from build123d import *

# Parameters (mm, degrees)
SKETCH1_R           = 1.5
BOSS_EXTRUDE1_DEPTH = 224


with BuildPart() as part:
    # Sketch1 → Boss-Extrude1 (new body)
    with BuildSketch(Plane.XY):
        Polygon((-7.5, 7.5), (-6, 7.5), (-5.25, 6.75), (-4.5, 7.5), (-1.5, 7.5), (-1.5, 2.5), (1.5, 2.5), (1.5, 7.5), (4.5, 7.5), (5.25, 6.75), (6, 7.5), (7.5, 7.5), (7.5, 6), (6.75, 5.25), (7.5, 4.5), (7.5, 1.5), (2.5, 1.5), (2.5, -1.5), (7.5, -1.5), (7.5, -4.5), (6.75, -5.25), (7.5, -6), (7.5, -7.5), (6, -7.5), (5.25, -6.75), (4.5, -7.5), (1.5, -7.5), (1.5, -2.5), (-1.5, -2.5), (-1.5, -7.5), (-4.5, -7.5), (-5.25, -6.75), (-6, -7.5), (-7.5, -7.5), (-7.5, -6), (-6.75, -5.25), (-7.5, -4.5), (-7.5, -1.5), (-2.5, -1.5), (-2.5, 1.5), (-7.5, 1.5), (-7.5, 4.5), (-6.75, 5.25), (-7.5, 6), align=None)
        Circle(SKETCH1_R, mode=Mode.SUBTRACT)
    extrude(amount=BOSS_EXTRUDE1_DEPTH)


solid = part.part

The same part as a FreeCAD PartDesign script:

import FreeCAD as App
import Part
import Sketcher
from FreeCAD import Vector
Q = App.Units.Quantity


def add_polygon(sketch, points):
    """Adds a closed chain of lines whose ends are joined by coincident constraints."""
    first, n = sketch.GeometryCount, len(points)
    for a, b in zip(points, points[1:] + points[:1]):
        sketch.addGeometry(Part.LineSegment(App.Vector(*a, 0), App.Vector(*b, 0)), False)
    for i in range(n):
        sketch.addConstraint(Sketcher.Constraint("Coincident", first + i, 2, first + (i + 1) % n, 1))

doc = App.newDocument("Part")
body = doc.addObject("PartDesign::Body", "Body")

# Sketch on XY plane
sketch1 = body.newObject("Sketcher::SketchObject", "Sketch")
sketch1.AttachmentSupport = (doc.getObject("XY_Plane"), [""])
sketch1.MapMode = "FlatFace"
add_polygon(sketch1, [(-6, 7.5), (-7.5, 7.5), (-7.5, 6), (-6.75, 5.25), (-7.5, 4.5), (-7.5, 1.5), (-2.5, 1.5), (-2.5, -1.5), (-7.5, -1.5), (-7.5, -4.5), (-6.75, -5.25), (-7.5, -6), (-7.5, -7.5), (-6, -7.5), (-5.25, -6.75), (-4.5, -7.5), (-1.5, -7.5), (-1.5, -2.5), (1.5, -2.5), (1.5, -7.5), (4.5, -7.5), (5.25, -6.75), (6, -7.5), (7.5, -7.5), (7.5, -6), (6.75, -5.25), (7.5, -4.5), (7.5, -1.5), (2.5, -1.5), (2.5, 1.5), (7.5, 1.5), (7.5, 4.5), (6.75, 5.25), (7.5, 6), (7.5, 7.5), (6, 7.5), (5.25, 6.75), (4.5, 7.5), (1.5, 7.5), (1.5, 2.5), (-1.5, 2.5), (-1.5, 7.5), (-4.5, 7.5), (-5.25, 6.75)])  # lines 0-43
sketch1.addGeometry(Part.Circle(Vector(0, 0, 0), Vector(0, 0, 1), 1.5), False)  # 44
sketch1.addConstraint(Sketcher.Constraint("Horizontal", 0))
sketch1.addConstraint(Sketcher.Constraint("Vertical", 1))
sketch1.addConstraint(Sketcher.Constraint("Vertical", 4))
sketch1.addConstraint(Sketcher.Constraint("Horizontal", 5))
sketch1.addConstraint(Sketcher.Constraint("Vertical", 6))
sketch1.addConstraint(Sketcher.Constraint("Horizontal", 7))
sketch1.addConstraint(Sketcher.Constraint("Vertical", 8))
sketch1.addConstraint(Sketcher.Constraint("Vertical", 11))
sketch1.addConstraint(Sketcher.Constraint("Horizontal", 12))
sketch1.addConstraint(Sketcher.Constraint("Horizontal", 15))
sketch1.addConstraint(Sketcher.Constraint("Vertical", 16))
sketch1.addConstraint(Sketcher.Constraint("Horizontal", 17))
sketch1.addConstraint(Sketcher.Constraint("Vertical", 18))
sketch1.addConstraint(Sketcher.Constraint("Horizontal", 19))
sketch1.addConstraint(Sketcher.Constraint("Horizontal", 22))
sketch1.addConstraint(Sketcher.Constraint("Vertical", 23))
sketch1.addConstraint(Sketcher.Constraint("Vertical", 26))
sketch1.addConstraint(Sketcher.Constraint("Horizontal", 27))
sketch1.addConstraint(Sketcher.Constraint("Vertical", 28))
sketch1.addConstraint(Sketcher.Constraint("Horizontal", 29))
sketch1.addConstraint(Sketcher.Constraint("Vertical", 30))
sketch1.addConstraint(Sketcher.Constraint("Vertical", 33))
sketch1.addConstraint(Sketcher.Constraint("Horizontal", 34))
sketch1.addConstraint(Sketcher.Constraint("Horizontal", 37))
sketch1.addConstraint(Sketcher.Constraint("Vertical", 38))
sketch1.addConstraint(Sketcher.Constraint("Horizontal", 39))
sketch1.addConstraint(Sketcher.Constraint("Vertical", 40))
sketch1.addConstraint(Sketcher.Constraint("Horizontal", 41))
sketch1.addConstraint(Sketcher.Constraint("Coincident", 44, 3, -1, 1))
sketch1.addConstraint(Sketcher.Constraint("Symmetric", 0, 2, 22, 2, -1, 1))
sketch1.addConstraint(Sketcher.Constraint("Symmetric", 2, 2, 24, 2, -1, 1))
sketch1.addConstraint(Sketcher.Constraint("Symmetric", 3, 2, 25, 2, -1, 1))
sketch1.addConstraint(Sketcher.Constraint("Symmetric", 5, 2, 27, 2, -1, 1))
sketch1.addConstraint(Sketcher.Constraint("Symmetric", 7, 2, 29, 2, -1, 1))
sketch1.addConstraint(Sketcher.Constraint("Symmetric", 9, 2, 31, 2, -1, 1))
sketch1.addConstraint(Sketcher.Constraint("Symmetric", 10, 2, 32, 2, -1, 1))
sketch1.addConstraint(Sketcher.Constraint("Symmetric", 12, 2, 34, 2, -1, 1))
sketch1.addConstraint(Sketcher.Constraint("Symmetric", 13, 2, 35, 2, -1, 1))
sketch1.addConstraint(Sketcher.Constraint("Symmetric", 14, 2, 36, 2, -1, 1))
sketch1.addConstraint(Sketcher.Constraint("Symmetric", 16, 2, 38, 2, -1, 1))
sketch1.addConstraint(Sketcher.Constraint("Symmetric", 18, 2, 40, 2, -1, 1))
sketch1.addConstraint(Sketcher.Constraint("Symmetric", 20, 2, 42, 2, -1, 1))
sketch1.addConstraint(Sketcher.Constraint("Symmetric", 15, 2, 18, 2, -2))
sketch1.addConstraint(Sketcher.Constraint("Symmetric", 13, 2, 20, 2, -2))
sketch1.addConstraint(Sketcher.Constraint("Symmetric", 12, 2, 21, 2, -2))
sketch1.addConstraint(Sketcher.Constraint("Symmetric", 10, 2, 23, 2, -2))
sketch1.addConstraint(Sketcher.Constraint("Symmetric", 9, 2, 24, 2, -2))
sketch1.addConstraint(Sketcher.Constraint("Symmetric", 8, 2, 25, 2, -2))
sketch1.addConstraint(Sketcher.Constraint("Perpendicular", 2, 3))
sketch1.addConstraint(Sketcher.Constraint("Perpendicular", 3, 9))
sketch1.addConstraint(Sketcher.Constraint("Perpendicular", 9, 10))
sketch1.addConstraint(Sketcher.Constraint("Parallel", 10, 13))
sketch1.addConstraint(Sketcher.Constraint("Perpendicular", 13, 14))
sketch1.addConstraint(Sketcher.Constraint("Perpendicular", 14, 20))
sketch1.addConstraint(Sketcher.Constraint("Perpendicular", 25, 31))
sketch1.addConstraint(Sketcher.Constraint("Perpendicular", 36, 42))
sketch1.addConstraint(Sketcher.Constraint("Perpendicular", 42, 43))
sketch1.addConstraint(Sketcher.Constraint("Horizontal", 12, 2, 14, 2))
sketch1.addConstraint(Sketcher.Constraint("Horizontal", 7, 2, 26, 2))
sketch1.addConstraint(Sketcher.Constraint("Vertical", 1, 2, 3, 2))
sketch1.addConstraint(Sketcher.Constraint("Equal", 15, 17))
sketch1.addConstraint(Sketcher.Constraint("Equal", 34, 1))
sketch1.addConstraint(Sketcher.Constraint("Equal", 41, 4))
sketch1.addConstraint(Sketcher.Constraint("Equal", 4, 6))
sketch1.addConstraint(Sketcher.Constraint("Equal", 29, 16))
sketch1.addConstraint(Sketcher.Constraint("Equal", 10, 13))
sketch1.addConstraint(Sketcher.Constraint("Diameter", 44, Q("3 mm")))
sketch1.addConstraint(Sketcher.Constraint("DistanceX", 5, 1, 5, 2, Q("5 mm")))
sketch1.addConstraint(Sketcher.Constraint("DistanceX", 15, 1, 15, 2, Q("3 mm")))
sketch1.addConstraint(Sketcher.Constraint("DistanceX", 0, 2, 0, 1, Q("1.5 mm")))
sketch1.addConstraint(Sketcher.Constraint("DistanceY", -1, 1, 1, 2, Q("6 mm")))
pad1 = body.newObject("PartDesign::Pad", "Pad")
pad1.Profile = sketch1
pad1.Length = 224

doc.recompute()
